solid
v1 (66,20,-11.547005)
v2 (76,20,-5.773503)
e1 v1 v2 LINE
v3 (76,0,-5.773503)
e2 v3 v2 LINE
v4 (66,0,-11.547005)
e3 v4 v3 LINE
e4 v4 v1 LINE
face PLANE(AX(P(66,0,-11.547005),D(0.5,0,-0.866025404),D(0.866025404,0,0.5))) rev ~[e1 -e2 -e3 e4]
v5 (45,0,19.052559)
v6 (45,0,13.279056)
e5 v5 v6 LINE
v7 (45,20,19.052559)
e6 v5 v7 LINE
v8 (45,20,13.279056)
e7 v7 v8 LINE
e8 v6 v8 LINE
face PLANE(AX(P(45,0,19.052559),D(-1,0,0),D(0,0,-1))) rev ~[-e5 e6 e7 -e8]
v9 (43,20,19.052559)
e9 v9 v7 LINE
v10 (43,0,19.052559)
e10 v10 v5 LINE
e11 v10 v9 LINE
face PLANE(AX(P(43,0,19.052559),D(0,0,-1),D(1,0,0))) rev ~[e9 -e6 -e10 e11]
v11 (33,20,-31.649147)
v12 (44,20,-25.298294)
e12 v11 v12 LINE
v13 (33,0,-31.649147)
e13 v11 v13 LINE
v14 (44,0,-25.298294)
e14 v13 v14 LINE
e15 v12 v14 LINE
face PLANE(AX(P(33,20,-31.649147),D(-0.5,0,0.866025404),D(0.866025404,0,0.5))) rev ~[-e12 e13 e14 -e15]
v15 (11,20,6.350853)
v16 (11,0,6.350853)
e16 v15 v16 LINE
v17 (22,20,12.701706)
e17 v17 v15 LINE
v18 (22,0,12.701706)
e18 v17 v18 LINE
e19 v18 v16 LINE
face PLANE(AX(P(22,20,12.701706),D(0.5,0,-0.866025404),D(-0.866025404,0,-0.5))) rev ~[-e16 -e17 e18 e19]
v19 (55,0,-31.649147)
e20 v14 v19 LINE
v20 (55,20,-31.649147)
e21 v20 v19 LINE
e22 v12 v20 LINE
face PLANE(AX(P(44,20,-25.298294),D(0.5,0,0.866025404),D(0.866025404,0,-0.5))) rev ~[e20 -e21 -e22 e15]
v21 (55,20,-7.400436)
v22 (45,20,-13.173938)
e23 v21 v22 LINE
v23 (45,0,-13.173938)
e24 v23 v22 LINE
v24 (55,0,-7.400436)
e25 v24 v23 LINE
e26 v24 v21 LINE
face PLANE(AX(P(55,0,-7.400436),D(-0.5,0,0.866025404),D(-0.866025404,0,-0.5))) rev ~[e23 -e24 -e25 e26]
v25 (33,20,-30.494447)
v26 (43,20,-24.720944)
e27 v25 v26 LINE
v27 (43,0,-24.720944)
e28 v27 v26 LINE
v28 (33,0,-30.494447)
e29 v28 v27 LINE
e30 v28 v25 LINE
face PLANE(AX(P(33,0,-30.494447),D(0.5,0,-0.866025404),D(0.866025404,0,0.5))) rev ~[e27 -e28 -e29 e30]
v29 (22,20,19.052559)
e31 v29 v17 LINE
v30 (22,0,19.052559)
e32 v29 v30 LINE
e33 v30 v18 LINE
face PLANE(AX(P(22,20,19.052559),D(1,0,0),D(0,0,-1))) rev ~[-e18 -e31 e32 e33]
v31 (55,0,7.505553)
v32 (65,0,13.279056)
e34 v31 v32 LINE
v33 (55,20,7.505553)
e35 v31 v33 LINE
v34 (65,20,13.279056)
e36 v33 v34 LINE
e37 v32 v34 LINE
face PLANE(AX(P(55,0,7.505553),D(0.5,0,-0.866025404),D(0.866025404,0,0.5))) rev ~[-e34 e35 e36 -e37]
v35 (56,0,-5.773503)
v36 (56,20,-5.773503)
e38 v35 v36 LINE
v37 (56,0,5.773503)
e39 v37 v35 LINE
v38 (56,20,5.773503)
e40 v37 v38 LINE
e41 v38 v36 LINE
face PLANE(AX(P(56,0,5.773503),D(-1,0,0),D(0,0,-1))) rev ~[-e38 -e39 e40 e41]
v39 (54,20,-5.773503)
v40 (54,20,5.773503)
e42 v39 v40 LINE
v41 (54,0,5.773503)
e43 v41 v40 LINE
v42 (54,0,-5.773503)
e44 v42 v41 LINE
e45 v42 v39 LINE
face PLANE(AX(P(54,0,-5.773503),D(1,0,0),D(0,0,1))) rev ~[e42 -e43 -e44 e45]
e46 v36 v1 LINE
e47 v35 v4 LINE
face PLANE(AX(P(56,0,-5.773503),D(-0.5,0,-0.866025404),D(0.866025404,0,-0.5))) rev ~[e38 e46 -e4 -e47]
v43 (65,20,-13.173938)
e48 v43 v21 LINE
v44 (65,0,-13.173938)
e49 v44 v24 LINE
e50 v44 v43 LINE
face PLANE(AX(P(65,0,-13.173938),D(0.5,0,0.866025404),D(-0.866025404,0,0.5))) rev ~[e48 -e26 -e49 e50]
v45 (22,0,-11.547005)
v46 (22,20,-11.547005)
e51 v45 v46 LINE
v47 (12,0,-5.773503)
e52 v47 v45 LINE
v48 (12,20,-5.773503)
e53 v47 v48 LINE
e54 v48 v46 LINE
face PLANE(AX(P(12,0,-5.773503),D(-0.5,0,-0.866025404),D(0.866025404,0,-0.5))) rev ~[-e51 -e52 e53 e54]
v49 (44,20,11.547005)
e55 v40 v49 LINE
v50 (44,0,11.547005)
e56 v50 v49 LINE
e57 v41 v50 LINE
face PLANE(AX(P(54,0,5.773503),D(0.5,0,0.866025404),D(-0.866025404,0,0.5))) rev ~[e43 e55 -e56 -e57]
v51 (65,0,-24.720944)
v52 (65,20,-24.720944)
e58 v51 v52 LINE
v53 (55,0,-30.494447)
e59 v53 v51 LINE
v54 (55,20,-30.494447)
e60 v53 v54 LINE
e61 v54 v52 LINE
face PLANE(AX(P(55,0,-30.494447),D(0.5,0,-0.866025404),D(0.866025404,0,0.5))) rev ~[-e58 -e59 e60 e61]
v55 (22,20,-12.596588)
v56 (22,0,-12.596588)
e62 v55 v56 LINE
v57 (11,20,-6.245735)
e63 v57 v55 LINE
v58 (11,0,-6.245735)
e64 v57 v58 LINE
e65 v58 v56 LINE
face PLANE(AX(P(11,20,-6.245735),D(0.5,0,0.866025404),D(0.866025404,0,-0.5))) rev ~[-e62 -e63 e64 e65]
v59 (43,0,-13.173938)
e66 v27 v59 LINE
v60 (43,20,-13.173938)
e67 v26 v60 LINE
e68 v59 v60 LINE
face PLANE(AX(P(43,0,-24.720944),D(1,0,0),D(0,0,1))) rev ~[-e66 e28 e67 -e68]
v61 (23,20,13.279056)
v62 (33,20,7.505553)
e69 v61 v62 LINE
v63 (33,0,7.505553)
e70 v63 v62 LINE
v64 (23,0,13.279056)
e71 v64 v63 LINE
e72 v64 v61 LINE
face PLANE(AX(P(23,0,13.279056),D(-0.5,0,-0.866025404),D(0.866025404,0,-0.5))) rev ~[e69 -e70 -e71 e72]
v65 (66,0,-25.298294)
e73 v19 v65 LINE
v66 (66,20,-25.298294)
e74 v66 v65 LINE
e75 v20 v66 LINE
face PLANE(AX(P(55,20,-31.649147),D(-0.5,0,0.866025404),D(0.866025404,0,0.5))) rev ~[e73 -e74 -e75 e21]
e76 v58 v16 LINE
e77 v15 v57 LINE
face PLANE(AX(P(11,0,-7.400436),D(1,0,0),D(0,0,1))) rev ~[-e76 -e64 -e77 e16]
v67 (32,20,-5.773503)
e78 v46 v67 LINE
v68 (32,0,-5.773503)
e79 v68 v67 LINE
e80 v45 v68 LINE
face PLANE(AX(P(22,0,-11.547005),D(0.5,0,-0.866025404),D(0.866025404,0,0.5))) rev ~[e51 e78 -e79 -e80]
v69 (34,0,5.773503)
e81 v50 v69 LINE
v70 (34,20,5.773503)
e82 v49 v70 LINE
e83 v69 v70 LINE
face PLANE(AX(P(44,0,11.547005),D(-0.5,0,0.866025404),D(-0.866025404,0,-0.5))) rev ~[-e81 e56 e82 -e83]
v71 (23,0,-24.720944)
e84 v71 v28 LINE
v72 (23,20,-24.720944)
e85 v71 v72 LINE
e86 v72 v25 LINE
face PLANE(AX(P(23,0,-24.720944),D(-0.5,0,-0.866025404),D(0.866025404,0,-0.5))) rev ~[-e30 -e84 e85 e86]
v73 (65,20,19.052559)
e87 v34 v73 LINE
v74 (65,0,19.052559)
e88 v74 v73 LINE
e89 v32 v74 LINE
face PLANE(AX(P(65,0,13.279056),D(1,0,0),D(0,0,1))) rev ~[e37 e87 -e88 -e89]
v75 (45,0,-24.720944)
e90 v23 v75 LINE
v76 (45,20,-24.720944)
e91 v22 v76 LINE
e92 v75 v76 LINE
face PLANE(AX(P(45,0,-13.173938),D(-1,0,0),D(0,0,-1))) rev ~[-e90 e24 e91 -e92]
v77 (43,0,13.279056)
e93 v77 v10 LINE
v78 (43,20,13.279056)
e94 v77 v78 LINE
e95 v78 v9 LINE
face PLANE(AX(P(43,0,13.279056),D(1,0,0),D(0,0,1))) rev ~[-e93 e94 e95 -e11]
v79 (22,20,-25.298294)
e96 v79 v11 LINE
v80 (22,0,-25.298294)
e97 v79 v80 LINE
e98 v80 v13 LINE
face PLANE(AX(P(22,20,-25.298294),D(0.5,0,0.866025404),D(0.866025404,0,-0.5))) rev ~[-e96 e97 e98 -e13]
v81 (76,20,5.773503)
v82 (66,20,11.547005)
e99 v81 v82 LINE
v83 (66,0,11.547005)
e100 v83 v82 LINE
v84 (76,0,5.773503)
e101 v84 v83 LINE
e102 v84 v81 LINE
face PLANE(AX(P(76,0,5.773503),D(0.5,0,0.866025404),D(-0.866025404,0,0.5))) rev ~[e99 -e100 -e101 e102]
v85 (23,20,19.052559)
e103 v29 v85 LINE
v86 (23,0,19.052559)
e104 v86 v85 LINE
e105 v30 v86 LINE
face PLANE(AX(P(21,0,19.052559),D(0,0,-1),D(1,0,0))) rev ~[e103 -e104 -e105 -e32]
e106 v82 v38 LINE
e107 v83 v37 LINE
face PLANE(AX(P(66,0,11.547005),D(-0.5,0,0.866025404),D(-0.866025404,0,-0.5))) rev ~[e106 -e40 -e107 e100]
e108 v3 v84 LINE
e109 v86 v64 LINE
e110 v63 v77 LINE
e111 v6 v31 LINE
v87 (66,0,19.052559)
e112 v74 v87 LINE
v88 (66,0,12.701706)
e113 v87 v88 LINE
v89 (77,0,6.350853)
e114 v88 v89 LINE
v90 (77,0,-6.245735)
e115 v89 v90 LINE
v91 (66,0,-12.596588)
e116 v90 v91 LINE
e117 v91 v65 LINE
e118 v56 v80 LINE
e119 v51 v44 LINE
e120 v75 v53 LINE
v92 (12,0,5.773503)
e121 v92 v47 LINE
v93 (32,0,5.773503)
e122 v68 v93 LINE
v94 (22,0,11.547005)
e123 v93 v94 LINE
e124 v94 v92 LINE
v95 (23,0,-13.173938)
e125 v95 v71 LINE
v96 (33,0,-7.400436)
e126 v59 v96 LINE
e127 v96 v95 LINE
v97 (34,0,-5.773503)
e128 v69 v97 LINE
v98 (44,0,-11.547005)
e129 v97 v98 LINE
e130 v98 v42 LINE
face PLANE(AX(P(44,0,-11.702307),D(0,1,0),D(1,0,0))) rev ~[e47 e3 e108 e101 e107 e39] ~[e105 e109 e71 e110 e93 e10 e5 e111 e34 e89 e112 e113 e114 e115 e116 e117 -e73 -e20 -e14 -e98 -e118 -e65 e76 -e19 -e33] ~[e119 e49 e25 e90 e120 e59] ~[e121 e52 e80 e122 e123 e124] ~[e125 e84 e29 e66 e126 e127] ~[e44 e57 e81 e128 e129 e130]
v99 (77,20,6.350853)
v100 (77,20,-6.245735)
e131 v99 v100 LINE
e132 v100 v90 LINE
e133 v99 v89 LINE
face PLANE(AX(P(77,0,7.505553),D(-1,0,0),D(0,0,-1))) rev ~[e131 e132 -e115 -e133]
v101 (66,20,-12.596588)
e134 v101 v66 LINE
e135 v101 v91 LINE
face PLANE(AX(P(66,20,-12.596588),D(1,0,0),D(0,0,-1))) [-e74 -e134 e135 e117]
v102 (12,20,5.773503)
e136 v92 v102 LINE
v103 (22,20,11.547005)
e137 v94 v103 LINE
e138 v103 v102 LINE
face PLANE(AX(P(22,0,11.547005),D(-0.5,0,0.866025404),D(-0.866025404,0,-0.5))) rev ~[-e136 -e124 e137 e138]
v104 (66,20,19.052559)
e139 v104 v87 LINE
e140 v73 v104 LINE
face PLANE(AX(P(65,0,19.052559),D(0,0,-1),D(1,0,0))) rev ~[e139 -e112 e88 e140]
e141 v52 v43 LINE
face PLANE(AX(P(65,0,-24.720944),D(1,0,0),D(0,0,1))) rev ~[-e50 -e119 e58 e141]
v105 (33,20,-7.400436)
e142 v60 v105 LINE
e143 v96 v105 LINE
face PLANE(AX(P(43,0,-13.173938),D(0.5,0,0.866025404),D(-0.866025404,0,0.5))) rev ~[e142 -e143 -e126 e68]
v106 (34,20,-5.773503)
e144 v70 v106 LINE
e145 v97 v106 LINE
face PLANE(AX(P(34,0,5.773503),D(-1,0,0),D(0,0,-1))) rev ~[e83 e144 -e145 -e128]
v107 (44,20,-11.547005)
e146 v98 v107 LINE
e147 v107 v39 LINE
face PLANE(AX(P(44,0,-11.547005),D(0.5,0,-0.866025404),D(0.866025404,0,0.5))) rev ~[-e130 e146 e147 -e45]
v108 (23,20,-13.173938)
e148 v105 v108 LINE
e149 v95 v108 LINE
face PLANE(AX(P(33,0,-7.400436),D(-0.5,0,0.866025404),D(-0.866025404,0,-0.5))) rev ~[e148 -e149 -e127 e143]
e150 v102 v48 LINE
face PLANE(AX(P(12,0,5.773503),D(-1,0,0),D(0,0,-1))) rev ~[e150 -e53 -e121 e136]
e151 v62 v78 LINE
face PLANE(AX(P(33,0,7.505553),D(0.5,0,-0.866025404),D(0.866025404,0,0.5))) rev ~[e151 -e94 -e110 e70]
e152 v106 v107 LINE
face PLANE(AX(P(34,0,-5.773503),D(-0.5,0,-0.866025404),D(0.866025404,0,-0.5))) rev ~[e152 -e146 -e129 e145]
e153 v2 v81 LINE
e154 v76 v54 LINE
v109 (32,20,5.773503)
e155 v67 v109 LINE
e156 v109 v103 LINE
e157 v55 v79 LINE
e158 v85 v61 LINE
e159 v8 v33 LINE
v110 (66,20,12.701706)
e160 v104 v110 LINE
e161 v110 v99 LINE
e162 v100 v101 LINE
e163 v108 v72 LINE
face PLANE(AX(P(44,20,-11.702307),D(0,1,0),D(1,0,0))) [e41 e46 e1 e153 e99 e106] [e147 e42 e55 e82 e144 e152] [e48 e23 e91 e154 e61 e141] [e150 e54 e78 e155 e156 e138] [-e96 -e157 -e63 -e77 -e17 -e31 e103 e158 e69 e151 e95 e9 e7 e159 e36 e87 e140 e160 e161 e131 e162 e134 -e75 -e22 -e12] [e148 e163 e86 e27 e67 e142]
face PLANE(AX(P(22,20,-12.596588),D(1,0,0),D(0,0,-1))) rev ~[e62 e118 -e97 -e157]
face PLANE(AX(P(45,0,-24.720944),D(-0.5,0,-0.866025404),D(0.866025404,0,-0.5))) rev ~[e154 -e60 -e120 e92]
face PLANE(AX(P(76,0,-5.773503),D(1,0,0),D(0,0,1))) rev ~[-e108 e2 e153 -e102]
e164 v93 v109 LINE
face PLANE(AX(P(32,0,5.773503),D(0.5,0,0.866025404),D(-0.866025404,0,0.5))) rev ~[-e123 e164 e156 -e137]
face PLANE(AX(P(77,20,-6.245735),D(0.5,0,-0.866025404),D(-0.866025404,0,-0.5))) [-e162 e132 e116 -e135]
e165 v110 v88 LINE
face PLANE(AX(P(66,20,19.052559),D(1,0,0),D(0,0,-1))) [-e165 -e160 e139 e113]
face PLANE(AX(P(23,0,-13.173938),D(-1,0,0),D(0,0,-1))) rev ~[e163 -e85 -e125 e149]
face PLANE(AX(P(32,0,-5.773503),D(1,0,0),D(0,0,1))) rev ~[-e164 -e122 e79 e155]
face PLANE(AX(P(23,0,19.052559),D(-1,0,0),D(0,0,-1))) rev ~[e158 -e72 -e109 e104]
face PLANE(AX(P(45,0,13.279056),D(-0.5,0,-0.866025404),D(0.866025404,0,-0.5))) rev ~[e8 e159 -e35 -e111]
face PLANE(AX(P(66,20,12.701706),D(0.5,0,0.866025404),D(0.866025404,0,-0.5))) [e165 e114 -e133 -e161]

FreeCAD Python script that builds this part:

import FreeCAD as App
import Part
import Sketcher
from FreeCAD import Vector
Q = App.Units.Quantity

doc = App.newDocument("Part")
body = doc.addObject("PartDesign::Body", "Body")

# Sketch on XZ plane
sketch1 = body.newObject("Sketcher::SketchObject", "Sketch")
sketch1.AttachmentSupport = (doc.getObject("XZ_Plane"), [""])
sketch1.MapMode = "FlatFace"
sketch1.addGeometry(Part.LineSegment(Vector(21, 13.3, 0), Vector(21, 19.1, 0)), False)
sketch1.addGeometry(Part.LineSegment(Vector(21, 19.1, 0), Vector(23, 19.1, 0)), False)
sketch1.addGeometry(Part.LineSegment(Vector(23, 19.1, 0), Vector(23, 13.3, 0)), False)
sketch1.addGeometry(Part.LineSegment(Vector(23, 13.3, 0), Vector(33, 7.5, 0)), False)
sketch1.addGeometry(Part.LineSegment(Vector(33, 7.5, 0), Vector(43, 13.3, 0)), False)
sketch1.addGeometry(Part.LineSegment(Vector(43, 13.3, 0), Vector(43, 19.1, 0)), False)
sketch1.addGeometry(Part.LineSegment(Vector(43, 19.1, 0), Vector(45, 19.1, 0)), False)
sketch1.addGeometry(Part.LineSegment(Vector(45, 19.1, 0), Vector(45, 13.3, 0)), False)
sketch1.addGeometry(Part.LineSegment(Vector(45, 13.3, 0), Vector(55, 7.5, 0)), False)
sketch1.addGeometry(Part.LineSegment(Vector(55, 7.5, 0), Vector(65, 13.3, 0)), False)
sketch1.addGeometry(Part.LineSegment(Vector(65, 13.3, 0), Vector(65, 19.1, 0)), False)
sketch1.addGeometry(Part.LineSegment(Vector(65, 19.1, 0), Vector(67, 19.1, 0)), False)
sketch1.addGeometry(Part.LineSegment(Vector(67, 19.1, 0), Vector(67, 13.3, 0)), False)
sketch1.addGeometry(Part.LineSegment(Vector(67, 13.3, 0), Vector(77, 7.5, 0)), False)
sketch1.addGeometry(Part.LineSegment(Vector(77, 7.5, 0), Vector(77, -7.4, 0)), False)
sketch1.addGeometry(Part.LineSegment(Vector(77, -7.4, 0), Vector(67, -13.2, 0)), False)
sketch1.addGeometry(Part.LineSegment(Vector(67, -13.2, 0), Vector(67, -24.7, 0)), False)
sketch1.addGeometry(Part.LineSegment(Vector(67, -24.7, 0), Vector(77, -30.5, 0)), False)
sketch1.addGeometry(Part.LineSegment(Vector(77, -30.5, 0), Vector(77, -38, 0)), False)
sketch1.addGeometry(Part.LineSegment(Vector(77, -38, 0), Vector(76, -38, 0)), False)
sketch1.addGeometry(Part.LineSegment(Vector(76, -38, 0), Vector(76, -32.2, 0)), False)
sketch1.addGeometry(Part.LineSegment(Vector(76, -32.2, 0), Vector(66, -26.5, 0)), False)
sketch1.addGeometry(Part.LineSegment(Vector(66, -26.5, 0), Vector(56, -32.2, 0)), False)
sketch1.addGeometry(Part.LineSegment(Vector(56, -32.2, 0), Vector(56, -38, 0)), False)
sketch1.addGeometry(Part.LineSegment(Vector(56, -38, 0), Vector(54, -38, 0)), False)
sketch1.addGeometry(Part.LineSegment(Vector(54, -38, 0), Vector(54, -32.2, 0)), False)
sketch1.addGeometry(Part.LineSegment(Vector(54, -32.2, 0), Vector(44, -26.5, 0)), False)
sketch1.addGeometry(Part.LineSegment(Vector(44, -26.5, 0), Vector(34, -32.2, 0)), False)
sketch1.addGeometry(Part.LineSegment(Vector(34, -32.2, 0), Vector(34, -38, 0)), False)
sketch1.addGeometry(Part.LineSegment(Vector(34, -38, 0), Vector(32, -38, 0)), False)
sketch1.addGeometry(Part.LineSegment(Vector(32, -38, 0), Vector(32, -32.2, 0)), False)
sketch1.addGeometry(Part.LineSegment(Vector(32, -32.2, 0), Vector(22, -26.5, 0)), False)
sketch1.addGeometry(Part.LineSegment(Vector(22, -26.5, 0), Vector(12, -32.2, 0)), False)
sketch1.addGeometry(Part.LineSegment(Vector(12, -32.2, 0), Vector(12, -38, 0)), False)
sketch1.addGeometry(Part.LineSegment(Vector(12, -38, 0), Vector(11, -38, 0)), False)
sketch1.addGeometry(Part.LineSegment(Vector(11, -38, 0), Vector(11, -30.5, 0)), False)
sketch1.addGeometry(Part.LineSegment(Vector(11, -30.5, 0), Vector(21, -24.7, 0)), False)
sketch1.addGeometry(Part.LineSegment(Vector(21, -24.7, 0), Vector(21, -13.2, 0)), False)
sketch1.addGeometry(Part.LineSegment(Vector(21, -13.2, 0), Vector(11, -7.4, 0)), False)
sketch1.addGeometry(Part.LineSegment(Vector(11, -7.4, 0), Vector(11, 7.5, 0)), False)
sketch1.addGeometry(Part.LineSegment(Vector(11, 7.5, 0), Vector(21, 13.3, 0)), False)
sketch1.addGeometry(Part.LineSegment(Vector(12, 5.8, 0), Vector(12, -5.8, 0)), False)
sketch1.addGeometry(Part.LineSegment(Vector(12, -5.8, 0), Vector(22, -11.5, 0)), False)
sketch1.addGeometry(Part.LineSegment(Vector(22, -11.5, 0), Vector(32, -5.8, 0)), False)
sketch1.addGeometry(Part.LineSegment(Vector(32, -5.8, 0), Vector(32, 5.8, 0)), False)
sketch1.addGeometry(Part.LineSegment(Vector(32, 5.8, 0), Vector(22, 11.5, 0)), False)
sketch1.addGeometry(Part.LineSegment(Vector(22, 11.5, 0), Vector(12, 5.8, 0)), False)
sketch1.addGeometry(Part.LineSegment(Vector(34, 5.8, 0), Vector(34, -5.8, 0)), False)
sketch1.addGeometry(Part.LineSegment(Vector(34, -5.8, 0), Vector(44, -11.5, 0)), False)
sketch1.addGeometry(Part.LineSegment(Vector(44, -11.5, 0), Vector(54, -5.8, 0)), False)
sketch1.addGeometry(Part.LineSegment(Vector(54, -5.8, 0), Vector(54, 5.8, 0)), False)
sketch1.addGeometry(Part.LineSegment(Vector(54, 5.8, 0), Vector(44, 11.5, 0)), False)
sketch1.addGeometry(Part.LineSegment(Vector(44, 11.5, 0), Vector(34, 5.8, 0)), False)
sketch1.addGeometry(Part.LineSegment(Vector(56, 5.8, 0), Vector(56, -5.8, 0)), False)
sketch1.addGeometry(Part.LineSegment(Vector(56, -5.8, 0), Vector(66, -11.5, 0)), False)
sketch1.addGeometry(Part.LineSegment(Vector(66, -11.5, 0), Vector(76, -5.8, 0)), False)
sketch1.addGeometry(Part.LineSegment(Vector(76, -5.8, 0), Vector(76, 5.8, 0)), False)
sketch1.addGeometry(Part.LineSegment(Vector(76, 5.8, 0), Vector(66, 11.5, 0)), False)
sketch1.addGeometry(Part.LineSegment(Vector(66, 11.5, 0), Vector(56, 5.8, 0)), False)
sketch1.addGeometry(Part.LineSegment(Vector(43, -24.7, 0), Vector(43, -13.2, 0)), False)
sketch1.addGeometry(Part.LineSegment(Vector(43, -13.2, 0), Vector(33, -7.4, 0)), False)
sketch1.addGeometry(Part.LineSegment(Vector(33, -7.4, 0), Vector(23, -13.2, 0)), False)
sketch1.addGeometry(Part.LineSegment(Vector(23, -13.2, 0), Vector(23, -24.7, 0)), False)
sketch1.addGeometry(Part.LineSegment(Vector(23, -24.7, 0), Vector(33, -30.5, 0)), False)
sketch1.addGeometry(Part.LineSegment(Vector(33, -30.5, 0), Vector(43, -24.7, 0)), False)
sketch1.addGeometry(Part.LineSegment(Vector(65, -24.7, 0), Vector(65, -13.2, 0)), False)
sketch1.addGeometry(Part.LineSegment(Vector(65, -13.2, 0), Vector(55, -7.4, 0)), False)
sketch1.addGeometry(Part.LineSegment(Vector(55, -7.4, 0), Vector(45, -13.2, 0)), False)
sketch1.addGeometry(Part.LineSegment(Vector(45, -13.2, 0), Vector(45, -24.7, 0)), False)
sketch1.addGeometry(Part.LineSegment(Vector(45, -24.7, 0), Vector(55, -30.5, 0)), False)
sketch1.addGeometry(Part.LineSegment(Vector(55, -30.5, 0), Vector(65, -24.7, 0)), False)
sketch1.addConstraint(Sketcher.Constraint("Coincident", 0, 2, 1, 1))
sketch1.addConstraint(Sketcher.Constraint("Coincident", 1, 2, 2, 1))
sketch1.addConstraint(Sketcher.Constraint("Coincident", 2, 2, 3, 1))
sketch1.addConstraint(Sketcher.Constraint("Coincident", 3, 2, 4, 1))
sketch1.addConstraint(Sketcher.Constraint("Coincident", 4, 2, 5, 1))
sketch1.addConstraint(Sketcher.Constraint("Coincident", 5, 2, 6, 1))
sketch1.addConstraint(Sketcher.Constraint("Coincident", 6, 2, 7, 1))
sketch1.addConstraint(Sketcher.Constraint("Coincident", 7, 2, 8, 1))
sketch1.addConstraint(Sketcher.Constraint("Coincident", 8, 2, 9, 1))
sketch1.addConstraint(Sketcher.Constraint("Coincident", 9, 2, 10, 1))
sketch1.addConstraint(Sketcher.Constraint("Coincident", 10, 2, 11, 1))
sketch1.addConstraint(Sketcher.Constraint("Coincident", 11, 2, 12, 1))
sketch1.addConstraint(Sketcher.Constraint("Coincident", 12, 2, 13, 1))
sketch1.addConstraint(Sketcher.Constraint("Coincident", 13, 2, 14, 1))
sketch1.addConstraint(Sketcher.Constraint("Coincident", 14, 2, 15, 1))
sketch1.addConstraint(Sketcher.Constraint("Coincident", 15, 2, 16, 1))
sketch1.addConstraint(Sketcher.Constraint("Coincident", 16, 2, 17, 1))
sketch1.addConstraint(Sketcher.Constraint("Coincident", 17, 2, 18, 1))
sketch1.addConstraint(Sketcher.Constraint("Coincident", 18, 2, 19, 1))
sketch1.addConstraint(Sketcher.Constraint("Coincident", 19, 2, 20, 1))
sketch1.addConstraint(Sketcher.Constraint("Coincident", 20, 2, 21, 1))
sketch1.addConstraint(Sketcher.Constraint("Coincident", 21, 2, 22, 1))
sketch1.addConstraint(Sketcher.Constraint("Coincident", 22, 2, 23, 1))
sketch1.addConstraint(Sketcher.Constraint("Coincident", 23, 2, 24, 1))
sketch1.addConstraint(Sketcher.Constraint("Coincident", 24, 2, 25, 1))
sketch1.addConstraint(Sketcher.Constraint("Coincident", 25, 2, 26, 1))
sketch1.addConstraint(Sketcher.Constraint("Coincident", 26, 2, 27, 1))
sketch1.addConstraint(Sketcher.Constraint("Coincident", 27, 2, 28, 1))
sketch1.addConstraint(Sketcher.Constraint("Coincident", 28, 2, 29, 1))
sketch1.addConstraint(Sketcher.Constraint("Coincident", 29, 2, 30, 1))
sketch1.addConstraint(Sketcher.Constraint("Coincident", 30, 2, 31, 1))
sketch1.addConstraint(Sketcher.Constraint("Coincident", 31, 2, 32, 1))
sketch1.addConstraint(Sketcher.Constraint("Coincident", 32, 2, 33, 1))
sketch1.addConstraint(Sketcher.Constraint("Coincident", 33, 2, 34, 1))
sketch1.addConstraint(Sketcher.Constraint("Coincident", 34, 2, 35, 1))
sketch1.addConstraint(Sketcher.Constraint("Coincident", 35, 2, 36, 1))
sketch1.addConstraint(Sketcher.Constraint("Coincident", 36, 2, 37, 1))
sketch1.addConstraint(Sketcher.Constraint("Coincident", 37, 2, 38, 1))
sketch1.addConstraint(Sketcher.Constraint("Coincident", 38, 2, 39, 1))
sketch1.addConstraint(Sketcher.Constraint("Coincident", 39, 2, 40, 1))
sketch1.addConstraint(Sketcher.Constraint("Coincident", 40, 2, 0, 1))
sketch1.addConstraint(Sketcher.Constraint("Coincident", 41, 2, 42, 1))
sketch1.addConstraint(Sketcher.Constraint("Coincident", 42, 2, 43, 1))
sketch1.addConstraint(Sketcher.Constraint("Coincident", 43, 2, 44, 1))
sketch1.addConstraint(Sketcher.Constraint("Coincident", 44, 2, 45, 1))
sketch1.addConstraint(Sketcher.Constraint("Coincident", 45, 2, 46, 1))
sketch1.addConstraint(Sketcher.Constraint("Coincident", 46, 2, 41, 1))
sketch1.addConstraint(Sketcher.Constraint("Coincident", 47, 2, 48, 1))
sketch1.addConstraint(Sketcher.Constraint("Coincident", 48, 2, 49, 1))
sketch1.addConstraint(Sketcher.Constraint("Coincident", 49, 2, 50, 1))
sketch1.addConstraint(Sketcher.Constraint("Coincident", 50, 2, 51, 1))
sketch1.addConstraint(Sketcher.Constraint("Coincident", 51, 2, 52, 1))
sketch1.addConstraint(Sketcher.Constraint("Coincident", 52, 2, 47, 1))
sketch1.addConstraint(Sketcher.Constraint("Coincident", 53, 2, 54, 1))
sketch1.addConstraint(Sketcher.Constraint("Coincident", 54, 2, 55, 1))
sketch1.addConstraint(Sketcher.Constraint("Coincident", 55, 2, 56, 1))
sketch1.addConstraint(Sketcher.Constraint("Coincident", 56, 2, 57, 1))
sketch1.addConstraint(Sketcher.Constraint("Coincident", 57, 2, 58, 1))
sketch1.addConstraint(Sketcher.Constraint("Coincident", 58, 2, 53, 1))
sketch1.addConstraint(Sketcher.Constraint("Coincident", 59, 2, 60, 1))
sketch1.addConstraint(Sketcher.Constraint("Coincident", 60, 2, 61, 1))
sketch1.addConstraint(Sketcher.Constraint("Coincident", 61, 2, 62, 1))
sketch1.addConstraint(Sketcher.Constraint("Coincident", 62, 2, 63, 1))
sketch1.addConstraint(Sketcher.Constraint("Coincident", 63, 2, 64, 1))
sketch1.addConstraint(Sketcher.Constraint("Coincident", 64, 2, 59, 1))
sketch1.addConstraint(Sketcher.Constraint("Coincident", 65, 2, 66, 1))
sketch1.addConstraint(Sketcher.Constraint("Coincident", 66, 2, 67, 1))
sketch1.addConstraint(Sketcher.Constraint("Coincident", 67, 2, 68, 1))
sketch1.addConstraint(Sketcher.Constraint("Coincident", 68, 2, 69, 1))
sketch1.addConstraint(Sketcher.Constraint("Coincident", 69, 2, 70, 1))
sketch1.addConstraint(Sketcher.Constraint("Coincident", 70, 2, 65, 1))
sketch1.addConstraint(Sketcher.Constraint("Vertical", 0))
sketch1.addConstraint(Sketcher.Constraint("Horizontal", 1))
sketch1.addConstraint(Sketcher.Constraint("Vertical", 2))
sketch1.addConstraint(Sketcher.Constraint("Vertical", 5))
sketch1.addConstraint(Sketcher.Constraint("Horizontal", 6))
sketch1.addConstraint(Sketcher.Constraint("Vertical", 7))
sketch1.addConstraint(Sketcher.Constraint("Vertical", 10))
sketch1.addConstraint(Sketcher.Constraint("Horizontal", 11))
sketch1.addConstraint(Sketcher.Constraint("Vertical", 12))
sketch1.addConstraint(Sketcher.Constraint("Vertical", 14))
sketch1.addConstraint(Sketcher.Constraint("Vertical", 16))
sketch1.addConstraint(Sketcher.Constraint("Vertical", 18))
sketch1.addConstraint(Sketcher.Constraint("Horizontal", 19))
sketch1.addConstraint(Sketcher.Constraint("Vertical", 20))
sketch1.addConstraint(Sketcher.Constraint("Vertical", 23))
sketch1.addConstraint(Sketcher.Constraint("Horizontal", 24))
sketch1.addConstraint(Sketcher.Constraint("Vertical", 25))
sketch1.addConstraint(Sketcher.Constraint("Vertical", 28))
sketch1.addConstraint(Sketcher.Constraint("Horizontal", 29))
sketch1.addConstraint(Sketcher.Constraint("Vertical", 30))
sketch1.addConstraint(Sketcher.Constraint("Vertical", 33))
sketch1.addConstraint(Sketcher.Constraint("Horizontal", 34))
sketch1.addConstraint(Sketcher.Constraint("Vertical", 35))
sketch1.addConstraint(Sketcher.Constraint("Vertical", 37))
sketch1.addConstraint(Sketcher.Constraint("Vertical", 39))
sketch1.addConstraint(Sketcher.Constraint("Vertical", 41))
sketch1.addConstraint(Sketcher.Constraint("Vertical", 44))
sketch1.addConstraint(Sketcher.Constraint("Vertical", 47))
sketch1.addConstraint(Sketcher.Constraint("Vertical", 50))
sketch1.addConstraint(Sketcher.Constraint("Vertical", 53))
sketch1.addConstraint(Sketcher.Constraint("Vertical", 56))
sketch1.addConstraint(Sketcher.Constraint("Vertical", 59))
sketch1.addConstraint(Sketcher.Constraint("Vertical", 62))
sketch1.addConstraint(Sketcher.Constraint("Vertical", 65))
sketch1.addConstraint(Sketcher.Constraint("Vertical", 68))
sketch1.addConstraint(Sketcher.Constraint("Symmetric", 42, 2, 45, 2, -1))
sketch1.addConstraint(Sketcher.Constraint("Symmetric", 48, 2, 51, 2, -1))
sketch1.addConstraint(Sketcher.Constraint("Symmetric", 54, 2, 57, 2, -1))
sketch1.addConstraint(Sketcher.Constraint("Parallel", 3, 8))
sketch1.addConstraint(Sketcher.Constraint("Parallel", 4, 9))
sketch1.addConstraint(Sketcher.Constraint("Parallel", 8, 13))
sketch1.addConstraint(Sketcher.Constraint("Parallel", 9, 15))
sketch1.addConstraint(Sketcher.Constraint("Parallel", 13, 17))
sketch1.addConstraint(Sketcher.Constraint("Parallel", 17, 21))
sketch1.addConstraint(Sketcher.Constraint("Parallel", 15, 22))
sketch1.addConstraint(Sketcher.Constraint("Parallel", 21, 26))
sketch1.addConstraint(Sketcher.Constraint("Parallel", 22, 27))
sketch1.addConstraint(Sketcher.Constraint("Parallel", 26, 31))
sketch1.addConstraint(Sketcher.Constraint("Parallel", 27, 32))
sketch1.addConstraint(Sketcher.Constraint("Parallel", 32, 36))
sketch1.addConstraint(Sketcher.Constraint("Parallel", 31, 38))
sketch1.addConstraint(Sketcher.Constraint("Parallel", 36, 40))
sketch1.addConstraint(Sketcher.Constraint("Parallel", 38, 42))
sketch1.addConstraint(Sketcher.Constraint("Parallel", 40, 43))
sketch1.addConstraint(Sketcher.Constraint("Parallel", 42, 45))
sketch1.addConstraint(Sketcher.Constraint("Parallel", 43, 46))
sketch1.addConstraint(Sketcher.Constraint("Parallel", 45, 48))
sketch1.addConstraint(Sketcher.Constraint("Parallel", 46, 49))
sketch1.addConstraint(Sketcher.Constraint("Parallel", 48, 51))
sketch1.addConstraint(Sketcher.Constraint("Parallel", 49, 52))
sketch1.addConstraint(Sketcher.Constraint("Parallel", 51, 54))
sketch1.addConstraint(Sketcher.Constraint("Parallel", 52, 55))
sketch1.addConstraint(Sketcher.Constraint("Parallel", 54, 57))
sketch1.addConstraint(Sketcher.Constraint("Parallel", 55, 58))
sketch1.addConstraint(Sketcher.Constraint("Parallel", 57, 60))
sketch1.addConstraint(Sketcher.Constraint("Parallel", 58, 61))
sketch1.addConstraint(Sketcher.Constraint("Parallel", 60, 63))
sketch1.addConstraint(Sketcher.Constraint("Parallel", 61, 64))
sketch1.addConstraint(Sketcher.Constraint("Parallel", 63, 66))
sketch1.addConstraint(Sketcher.Constraint("Parallel", 64, 67))
sketch1.addConstraint(Sketcher.Constraint("Parallel", 66, 69))
sketch1.addConstraint(Sketcher.Constraint("Parallel", 67, 70))
sketch1.addConstraint(Sketcher.Constraint("Horizontal", 2, 2, 4, 2))
sketch1.addConstraint(Sketcher.Constraint("Horizontal", 1, 2, 5, 2))
sketch1.addConstraint(Sketcher.Constraint("Horizontal", 4, 2, 7, 2))
sketch1.addConstraint(Sketcher.Constraint("Horizontal", 3, 2, 8, 2))
sketch1.addConstraint(Sketcher.Constraint("Horizontal", 7, 2, 9, 2))
sketch1.addConstraint(Sketcher.Constraint("Horizontal", 6, 2, 10, 2))
sketch1.addConstraint(Sketcher.Constraint("Horizontal", 9, 2, 12, 2))
sketch1.addConstraint(Sketcher.Constraint("Horizontal", 8, 2, 13, 2))
sketch1.addConstraint(Sketcher.Constraint("Horizontal", 20, 2, 22, 2))
sketch1.addConstraint(Sketcher.Constraint("Horizontal", 19, 2, 23, 2))
sketch1.addConstraint(Sketcher.Constraint("Horizontal", 22, 2, 25, 2))
sketch1.addConstraint(Sketcher.Constraint("Horizontal", 21, 2, 26, 2))
sketch1.addConstraint(Sketcher.Constraint("Horizontal", 25, 2, 27, 2))
sketch1.addConstraint(Sketcher.Constraint("Horizontal", 24, 2, 28, 2))
sketch1.addConstraint(Sketcher.Constraint("Horizontal", 27, 2, 30, 2))
sketch1.addConstraint(Sketcher.Constraint("Horizontal", 26, 2, 31, 2))
sketch1.addConstraint(Sketcher.Constraint("Horizontal", 30, 2, 32, 2))
sketch1.addConstraint(Sketcher.Constraint("Horizontal", 29, 2, 33, 2))
sketch1.addConstraint(Sketcher.Constraint("Horizontal", 17, 2, 35, 2))
sketch1.addConstraint(Sketcher.Constraint("Horizontal", 16, 2, 36, 2))
sketch1.addConstraint(Sketcher.Constraint("Horizontal", 15, 2, 37, 2))
sketch1.addConstraint(Sketcher.Constraint("Horizontal", 14, 2, 38, 2))
sketch1.addConstraint(Sketcher.Constraint("Horizontal", 13, 2, 39, 2))
sketch1.addConstraint(Sketcher.Constraint("Horizontal", 12, 2, 40, 2))
sketch1.addConstraint(Sketcher.Constraint("Horizontal", 41, 2, 43, 2))
sketch1.addConstraint(Sketcher.Constraint("Horizontal", 44, 2, 46, 2))
sketch1.addConstraint(Sketcher.Constraint("Horizontal", 43, 2, 47, 2))
sketch1.addConstraint(Sketcher.Constraint("Horizontal", 42, 2, 48, 2))
sketch1.addConstraint(Sketcher.Constraint("Horizontal", 47, 2, 49, 2))
sketch1.addConstraint(Sketcher.Constraint("Horizontal", 49, 2, 53, 2))
sketch1.addConstraint(Sketcher.Constraint("Horizontal", 48, 2, 54, 2))
sketch1.addConstraint(Sketcher.Constraint("Horizontal", 53, 2, 55, 2))
sketch1.addConstraint(Sketcher.Constraint("Horizontal", 37, 2, 59, 2))
sketch1.addConstraint(Sketcher.Constraint("Horizontal", 38, 2, 60, 2))
sketch1.addConstraint(Sketcher.Constraint("Horizontal", 59, 2, 61, 2))
sketch1.addConstraint(Sketcher.Constraint("Horizontal", 36, 2, 62, 2))
sketch1.addConstraint(Sketcher.Constraint("Horizontal", 35, 2, 63, 2))
sketch1.addConstraint(Sketcher.Constraint("Horizontal", 62, 2, 64, 2))
sketch1.addConstraint(Sketcher.Constraint("Horizontal", 61, 2, 65, 2))
sketch1.addConstraint(Sketcher.Constraint("Horizontal", 60, 2, 66, 2))
sketch1.addConstraint(Sketcher.Constraint("Horizontal", 65, 2, 67, 2))
sketch1.addConstraint(Sketcher.Constraint("Horizontal", 64, 2, 68, 2))
sketch1.addConstraint(Sketcher.Constraint("Horizontal", 63, 2, 69, 2))
sketch1.addConstraint(Sketcher.Constraint("Vertical", 12, 2, 15, 2))
sketch1.addConstraint(Sketcher.Constraint("Vertical", 33, 2, 41, 2))
sketch1.addConstraint(Sketcher.Constraint("Vertical", 31, 2, 42, 2))
sketch1.addConstraint(Sketcher.Constraint("Vertical", 28, 2, 47, 2))
sketch1.addConstraint(Sketcher.Constraint("Vertical", 23, 2, 53, 2))
sketch1.addConstraint(Sketcher.Constraint("Vertical", 5, 2, 59, 2))
sketch1.addConstraint(Sketcher.Constraint("Vertical", 10, 2, 65, 2))
sketch1.addConstraint(Sketcher.Constraint("Equal", 1, 6))
sketch1.addConstraint(Sketcher.Constraint("Equal", 6, 11))
sketch1.addConstraint(Sketcher.Constraint("Equal", 11, 24))
sketch1.addConstraint(Sketcher.Constraint("Equal", 24, 29))
sketch1.addConstraint(Sketcher.Constraint("Equal", 19, 34))
sketch1.addConstraint(Sketcher.Constraint("Equal", 12, 20))
sketch1.addConstraint(Sketcher.Constraint("Equal", 37, 41))
sketch1.addConstraint(Sketcher.Constraint("Equal", 17, 21))
sketch1.addConstraint(Sketcher.Constraint("DistanceX", 1, 1, 1, 2, Q("2 mm")))
sketch1.addConstraint(Sketcher.Constraint("Angle", 3, Q("-30 deg")))
sketch1.addConstraint(Sketcher.Constraint("DistanceX", -1, 1, 0, 2, Q("21 mm")))
sketch1.addConstraint(Sketcher.Constraint("DistanceX", -1, 1, 3, 2, Q("33 mm")))
sketch1.addConstraint(Sketcher.Constraint("DistanceY", 18, 2, -1, 1, Q("38 mm")))
sketch1.addConstraint(Sketcher.Constraint("DistanceY", 14, 2, 14, 1, Q("14.905989 mm")))
sketch1.addConstraint(Sketcher.Constraint("DistanceY", 0, 1, 0, 2, Q("5.773503 mm")))
sketch1.addConstraint(Sketcher.Constraint("DistanceY", 16, 2, 16, 1, Q("11.547005 mm")))
sketch1.addConstraint(Sketcher.Constraint("DistanceY", 18, 2, 18, 1, Q("7.505553 mm")))
pad1 = body.newObject("PartDesign::Pad", "Pad")
pad1.Profile = sketch1
pad1.Length = 20
pad1.Reversed = True

# Sketch on XZ plane
sketch2 = body.newObject("Sketcher::SketchObject", "Sketch001")
sketch2.AttachmentSupport = (doc.getObject("XZ_Plane"), [""])
sketch2.MapMode = "FlatFace"
sketch2.AttachmentOffset = App.Placement(Vector(0, 0, -20), App.Rotation())
sketch2.addGeometry(Part.LineSegment(Vector(11, -6, 0), Vector(22, -13, 0)), False)
sketch2.addGeometry(Part.LineSegment(Vector(22, -13, 0), Vector(22, -25, 0)), False)
sketch2.addGeometry(Part.LineSegment(Vector(22, -25, 0), Vector(11, -32, 0)), False)
sketch2.addGeometry(Part.LineSegment(Vector(11, -32, 0), Vector(2, 19, 0)), False)
sketch2.addGeometry(Part.LineSegment(Vector(2, 19, 0), Vector(22, 19, 0)), False)
sketch2.addGeometry(Part.LineSegment(Vector(22, 19, 0), Vector(22, 13, 0)), False)
sketch2.addGeometry(Part.LineSegment(Vector(22, 13, 0), Vector(11, 6, 0)), False)
sketch2.addGeometry(Part.LineSegment(Vector(11, 6, 0), Vector(11, -6, 0)), False)
sketch2.addGeometry(Part.LineSegment(Vector(86, 19, 0), Vector(77, -32, 0)), False)
sketch2.addGeometry(Part.LineSegment(Vector(77, -32, 0), Vector(66, -25, 0)), False)
sketch2.addGeometry(Part.LineSegment(Vector(66, -25, 0), Vector(66, -13, 0)), False)
sketch2.addGeometry(Part.LineSegment(Vector(66, -13, 0), Vector(77, -6, 0)), False)
sketch2.addGeometry(Part.LineSegment(Vector(77, -6, 0), Vector(77, 6, 0)), False)
sketch2.addGeometry(Part.LineSegment(Vector(77, 6, 0), Vector(66, 13, 0)), False)
sketch2.addGeometry(Part.LineSegment(Vector(66, 13, 0), Vector(66, 19, 0)), False)
sketch2.addGeometry(Part.LineSegment(Vector(66, 19, 0), Vector(86, 19, 0)), False)
sketch2.addConstraint(Sketcher.Constraint("Coincident", 0, 2, 1, 1))
sketch2.addConstraint(Sketcher.Constraint("Coincident", 1, 2, 2, 1))
sketch2.addConstraint(Sketcher.Constraint("Coincident", 2, 2, 3, 1))
sketch2.addConstraint(Sketcher.Constraint("Coincident", 3, 2, 4, 1))
sketch2.addConstraint(Sketcher.Constraint("Coincident", 4, 2, 5, 1))
sketch2.addConstraint(Sketcher.Constraint("Coincident", 5, 2, 6, 1))
sketch2.addConstraint(Sketcher.Constraint("Coincident", 6, 2, 7, 1))
sketch2.addConstraint(Sketcher.Constraint("Coincident", 7, 2, 0, 1))
sketch2.addConstraint(Sketcher.Constraint("Coincident", 8, 2, 9, 1))
sketch2.addConstraint(Sketcher.Constraint("Coincident", 9, 2, 10, 1))
sketch2.addConstraint(Sketcher.Constraint("Coincident", 10, 2, 11, 1))
sketch2.addConstraint(Sketcher.Constraint("Coincident", 11, 2, 12, 1))
sketch2.addConstraint(Sketcher.Constraint("Coincident", 12, 2, 13, 1))
sketch2.addConstraint(Sketcher.Constraint("Coincident", 13, 2, 14, 1))
sketch2.addConstraint(Sketcher.Constraint("Coincident", 14, 2, 15, 1))
sketch2.addConstraint(Sketcher.Constraint("Coincident", 15, 2, 8, 1))
sketch2.addConstraint(Sketcher.Constraint("Vertical", 1))
sketch2.addConstraint(Sketcher.Constraint("Horizontal", 4))
sketch2.addConstraint(Sketcher.Constraint("Vertical", 5))
sketch2.addConstraint(Sketcher.Constraint("Vertical", 7))
sketch2.addConstraint(Sketcher.Constraint("Vertical", 10))
sketch2.addConstraint(Sketcher.Constraint("Vertical", 12))
sketch2.addConstraint(Sketcher.Constraint("Vertical", 14))
sketch2.addConstraint(Sketcher.Constraint("Horizontal", 15))
sketch2.addConstraint(Sketcher.Constraint("Parallel", 2, 6))
sketch2.addConstraint(Sketcher.Constraint("Parallel", 0, 9))
sketch2.addConstraint(Sketcher.Constraint("Parallel", 6, 11))
sketch2.addConstraint(Sketcher.Constraint("Parallel", 9, 13))
sketch2.addConstraint(Sketcher.Constraint("Horizontal", 2, 2, 8, 2))
sketch2.addConstraint(Sketcher.Constraint("Horizontal", 1, 2, 9, 2))
sketch2.addConstraint(Sketcher.Constraint("Horizontal", 0, 2, 10, 2))
sketch2.addConstraint(Sketcher.Constraint("Horizontal", 7, 2, 11, 2))
sketch2.addConstraint(Sketcher.Constraint("Horizontal", 6, 2, 12, 2))
sketch2.addConstraint(Sketcher.Constraint("Horizontal", 5, 2, 13, 2))
sketch2.addConstraint(Sketcher.Constraint("Horizontal", 4, 2, 14, 2))
sketch2.addConstraint(Sketcher.Constraint("Vertical", 1, 2, 4, 2))
sketch2.addConstraint(Sketcher.Constraint("Vertical", 2, 2, 6, 2))
sketch2.addConstraint(Sketcher.Constraint("Vertical", 8, 2, 11, 2))
sketch2.addConstraint(Sketcher.Constraint("Equal", 4, 15))
sketch2.addConstraint(Sketcher.Constraint("Angle", 0, Q("-30 deg")))
sketch2.addConstraint(Sketcher.Constraint("DistanceX", -1, 1, 0, 2, Q("22 mm")))
sketch2.addConstraint(Sketcher.Constraint("DistanceX", -1, 1, 2, 2, Q("11 mm")))
sketch2.addConstraint(Sketcher.Constraint("DistanceX", -1, 1, 8, 2, Q("77 mm")))
sketch2.addConstraint(Sketcher.Constraint("DistanceY", 1, 2, 5, 2, Q("38 mm")))
sketch2.addConstraint(Sketcher.Constraint("DistanceY", 7, 2, 7, 1, Q("12.596588 mm")))
sketch2.addConstraint(Sketcher.Constraint("DistanceX", 4, 1, 4, 2, Q("19.704128 mm")))
sketch2.addConstraint(Sketcher.Constraint("DistanceY", 5, 2, 5, 1, Q("6.350853 mm")))
sketch2.addConstraint(Sketcher.Constraint("DistanceY", 0, 2, -1, 1, Q("12.596588 mm")))
pocket1 = body.newObject("PartDesign::Pocket", "Pocket")
pocket1.Profile = sketch2
pocket1.Type = "ThroughAll"
pocket1.Reversed = True

# Sketch on XZ plane
sketch3 = body.newObject("Sketcher::SketchObject", "Sketch002")
sketch3.AttachmentSupport = (doc.getObject("XZ_Plane"), [""])
sketch3.MapMode = "FlatFace"
sketch3.AttachmentOffset = App.Placement(Vector(0, 0, -20), App.Rotation())
sketch3.addGeometry(Part.LineSegment(Vector(22, -25, 0), Vector(33, -32, 0)), False)
sketch3.addGeometry(Part.LineSegment(Vector(33, -32, 0), Vector(44, -25, 0)), False)
sketch3.addGeometry(Part.LineSegment(Vector(44, -25, 0), Vector(55, -32, 0)), False)
sketch3.addGeometry(Part.LineSegment(Vector(55, -32, 0), Vector(66, -25, 0)), False)
sketch3.addGeometry(Part.LineSegment(Vector(66, -25, 0), Vector(77, -32, 0)), False)
sketch3.addGeometry(Part.LineSegment(Vector(77, -32, 0), Vector(77, -38, 0)), False)
sketch3.addGeometry(Part.LineSegment(Vector(77, -38, 0), Vector(11, -38, 0)), False)
sketch3.addGeometry(Part.LineSegment(Vector(11, -38, 0), Vector(11, -32, 0)), False)
sketch3.addGeometry(Part.LineSegment(Vector(11, -32, 0), Vector(22, -25, 0)), False)
sketch3.addConstraint(Sketcher.Constraint("Coincident", 0, 2, 1, 1))
sketch3.addConstraint(Sketcher.Constraint("Coincident", 1, 2, 2, 1))
sketch3.addConstraint(Sketcher.Constraint("Coincident", 2, 2, 3, 1))
sketch3.addConstraint(Sketcher.Constraint("Coincident", 3, 2, 4, 1))
sketch3.addConstraint(Sketcher.Constraint("Coincident", 4, 2, 5, 1))
sketch3.addConstraint(Sketcher.Constraint("Coincident", 5, 2, 6, 1))
sketch3.addConstraint(Sketcher.Constraint("Coincident", 6, 2, 7, 1))
sketch3.addConstraint(Sketcher.Constraint("Coincident", 7, 2, 8, 1))
sketch3.addConstraint(Sketcher.Constraint("Coincident", 8, 2, 0, 1))
sketch3.addConstraint(Sketcher.Constraint("Vertical", 5))
sketch3.addConstraint(Sketcher.Constraint("Horizontal", 6))
sketch3.addConstraint(Sketcher.Constraint("Vertical", 7))
sketch3.addConstraint(Sketcher.Constraint("Parallel", 0, 2))
sketch3.addConstraint(Sketcher.Constraint("Parallel", 1, 3))
sketch3.addConstraint(Sketcher.Constraint("Parallel", 2, 4))
sketch3.addConstraint(Sketcher.Constraint("Parallel", 3, 8))
sketch3.addConstraint(Sketcher.Constraint("Horizontal", 0, 2, 2, 2))
sketch3.addConstraint(Sketcher.Constraint("Horizontal", 1, 2, 3, 2))
sketch3.addConstraint(Sketcher.Constraint("Horizontal", 2, 2, 4, 2))
sketch3.addConstraint(Sketcher.Constraint("Horizontal", 4, 2, 7, 2))
sketch3.addConstraint(Sketcher.Constraint("Horizontal", 3, 2, 8, 2))
sketch3.addConstraint(Sketcher.Constraint("Equal", 0, 1))
sketch3.addConstraint(Sketcher.Constraint("DistanceX", 6, 2, 6, 1, Q("66 mm")))
sketch3.addConstraint(Sketcher.Constraint("Angle", 0, Q("-30 deg")))
sketch3.addConstraint(Sketcher.Constraint("DistanceX", -1, 1, 0, 2, Q("33 mm")))
sketch3.addConstraint(Sketcher.Constraint("DistanceY", 5, 2, -1, 1, Q("38 mm")))
sketch3.addConstraint(Sketcher.Constraint("DistanceY", 5, 2, 5, 1, Q("6.350853 mm")))
pocket2 = body.newObject("PartDesign::Pocket", "Pocket001")
pocket2.Profile = sketch3
pocket2.Type = "ThroughAll"
pocket2.Reversed = True

doc.recompute()
